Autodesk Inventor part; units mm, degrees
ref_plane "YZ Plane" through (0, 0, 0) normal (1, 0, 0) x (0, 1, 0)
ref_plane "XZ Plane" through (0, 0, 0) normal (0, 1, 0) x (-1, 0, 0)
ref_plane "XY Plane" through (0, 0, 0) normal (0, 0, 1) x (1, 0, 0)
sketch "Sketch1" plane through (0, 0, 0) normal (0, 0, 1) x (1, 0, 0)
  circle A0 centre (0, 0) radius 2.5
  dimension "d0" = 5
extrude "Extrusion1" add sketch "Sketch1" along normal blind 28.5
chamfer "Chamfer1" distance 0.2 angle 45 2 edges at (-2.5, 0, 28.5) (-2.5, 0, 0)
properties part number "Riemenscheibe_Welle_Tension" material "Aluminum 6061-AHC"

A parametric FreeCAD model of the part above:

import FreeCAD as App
import Part
import Sketcher

V = App.Vector
Q = App.Units.Quantity


def edges_at(feature, points):
    """Names of the edges that pass closest to the given points."""
    edges = feature.Shape.Edges
    near = lambda p: min(range(len(edges)), key=lambda i: edges[i].distToShape(Part.Vertex(*p))[0])
    return sorted({f"Edge{near(p) + 1}" for p in points})

doc = App.newDocument("Part")
body = doc.addObject("PartDesign::Body", "Body")

# Sketch on XY plane
sketch1 = doc.addObject("Sketcher::SketchObject", "Sketch")
body.addObject(sketch1)
sketch1.AttachmentSupport = (doc.XY_Plane, [""])
sketch1.MapMode = "FlatFace"
sketch1.addGeometry(Part.Circle(V(0, 0, 0), V(0, 0, 1), 2.5), False)
sketch1.addConstraint(Sketcher.Constraint("Coincident", 0, 3, -1, 1))
sketch1.addConstraint(Sketcher.Constraint("Diameter", 0, Q("5 mm")))
pad1 = doc.addObject("PartDesign::Pad", "Pad")
body.addObject(pad1)
pad1.Profile = sketch1
pad1.Length = 28.5
doc.recompute()

chamfer = doc.addObject("PartDesign::Chamfer", "Chamfer")
body.addObject(chamfer)
chamfer.Base = (pad1, edges_at(pad1, [(-2.5, 0, 28.5), (-2.5, 0, 0)]))
chamfer.Size = 0.2

doc.recompute()
